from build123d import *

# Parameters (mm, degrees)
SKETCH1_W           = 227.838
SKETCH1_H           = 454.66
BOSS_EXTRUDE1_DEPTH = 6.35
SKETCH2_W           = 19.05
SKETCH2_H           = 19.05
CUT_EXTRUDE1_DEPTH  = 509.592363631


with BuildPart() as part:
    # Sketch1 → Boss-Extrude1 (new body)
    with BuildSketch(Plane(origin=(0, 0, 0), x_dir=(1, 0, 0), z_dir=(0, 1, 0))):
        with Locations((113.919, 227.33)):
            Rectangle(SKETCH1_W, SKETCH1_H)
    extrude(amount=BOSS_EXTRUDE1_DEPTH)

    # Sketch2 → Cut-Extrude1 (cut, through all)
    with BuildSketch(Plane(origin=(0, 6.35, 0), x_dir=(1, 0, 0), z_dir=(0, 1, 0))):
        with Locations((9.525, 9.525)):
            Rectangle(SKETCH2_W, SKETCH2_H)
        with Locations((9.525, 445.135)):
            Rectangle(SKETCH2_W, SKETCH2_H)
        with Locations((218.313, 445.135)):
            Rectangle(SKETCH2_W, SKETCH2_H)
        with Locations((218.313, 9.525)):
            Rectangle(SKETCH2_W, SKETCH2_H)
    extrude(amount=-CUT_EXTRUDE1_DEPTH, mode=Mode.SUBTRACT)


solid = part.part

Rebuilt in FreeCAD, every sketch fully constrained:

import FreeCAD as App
import Part
import Sketcher
from FreeCAD import Vector
Q = App.Units.Quantity

doc = App.newDocument("Part")
body = doc.addObject("PartDesign::Body", "Body")

sketch1 = body.newObject("Sketcher::SketchObject", "Sketch")
sketch1.AttachmentSupport = (doc.getObject("XZ_Plane"), [""])
sketch1.MapMode = "FlatFace"
sketch1.addGeometry([
    Part.LineSegment(Vector(0, -455, 0), Vector(0, 0, 0)),
    Part.LineSegment(Vector(0, 0, 0), Vector(228, 0, 0)),
    Part.LineSegment(Vector(228, 0, 0), Vector(228, -455, 0)),
    Part.LineSegment(Vector(228, -455, 0), Vector(0, -455, 0)),
], False)
sketch1.addConstraint([
    Sketcher.Constraint("Coincident", 0, 2, 1, 1),
    Sketcher.Constraint("Coincident", 1, 2, 2, 1),
    Sketcher.Constraint("Coincident", 2, 2, 3, 1),
    Sketcher.Constraint("Coincident", 3, 2, 0, 1),
    Sketcher.Constraint("Vertical", 0),
    Sketcher.Constraint("Horizontal", 1),
    Sketcher.Constraint("Vertical", 2),
    Sketcher.Constraint("Horizontal", 3),
    Sketcher.Constraint("Coincident", 0, 2, -1, 1),
    Sketcher.Constraint("DistanceY", 0, 1, 0, 2, Q("17.9 in")),
    Sketcher.Constraint("DistanceX", 1, 1, 1, 2, Q("8.97 in")),
])
pad1 = body.newObject("PartDesign::Pad", "Pad")
pad1.Profile = sketch1
pad1.Length = Q("0.25 in")
pad1.Reversed = True

sketch2 = body.newObject("Sketcher::SketchObject", "Sketch001")
sketch2.AttachmentSupport = (doc.getObject("XZ_Plane"), [""])
sketch2.MapMode = "FlatFace"
sketch2.AttachmentOffset = App.Placement(Vector(0, 0, -0.25 * 25.4), App.Rotation())
sketch2.addGeometry([
    Part.LineSegment(Vector(0, -19, 0), Vector(0, 0, 0)),
    Part.LineSegment(Vector(0, 0, 0), Vector(19, 0, 0)),
    Part.LineSegment(Vector(19, 0, 0), Vector(19, -19, 0)),
    Part.LineSegment(Vector(19, -19, 0), Vector(0, -19, 0)),
    Part.LineSegment(Vector(0, -455, 0), Vector(0, -436, 0)),
    Part.LineSegment(Vector(0, -436, 0), Vector(19, -436, 0)),
    Part.LineSegment(Vector(19, -436, 0), Vector(19, -455, 0)),
    Part.LineSegment(Vector(19, -455, 0), Vector(0, -455, 0)),
    Part.LineSegment(Vector(209, -455, 0), Vector(209, -436, 0)),
    Part.LineSegment(Vector(209, -436, 0), Vector(228, -436, 0)),
    Part.LineSegment(Vector(228, -436, 0), Vector(228, -455, 0)),
    Part.LineSegment(Vector(228, -455, 0), Vector(209, -455, 0)),
    Part.LineSegment(Vector(209, -19, 0), Vector(209, 0, 0)),
    Part.LineSegment(Vector(209, 0, 0), Vector(228, 0, 0)),
    Part.LineSegment(Vector(228, 0, 0), Vector(228, -19, 0)),
    Part.LineSegment(Vector(228, -19, 0), Vector(209, -19, 0)),
], False)
sketch2.addConstraint([
    Sketcher.Constraint("Coincident", 0, 2, 1, 1),
    Sketcher.Constraint("Coincident", 1, 2, 2, 1),
    Sketcher.Constraint("Coincident", 2, 2, 3, 1),
    Sketcher.Constraint("Coincident", 3, 2, 0, 1),
    Sketcher.Constraint("Coincident", 4, 2, 5, 1),
    Sketcher.Constraint("Coincident", 5, 2, 6, 1),
    Sketcher.Constraint("Coincident", 6, 2, 7, 1),
    Sketcher.Constraint("Coincident", 7, 2, 4, 1),
    Sketcher.Constraint("Coincident", 8, 2, 9, 1),
    Sketcher.Constraint("Coincident", 9, 2, 10, 1),
    Sketcher.Constraint("Coincident", 10, 2, 11, 1),
    Sketcher.Constraint("Coincident", 11, 2, 8, 1),
    Sketcher.Constraint("Coincident", 12, 2, 13, 1),
    Sketcher.Constraint("Coincident", 13, 2, 14, 1),
    Sketcher.Constraint("Coincident", 14, 2, 15, 1),
    Sketcher.Constraint("Coincident", 15, 2, 12, 1),
    Sketcher.Constraint("Vertical", 0),
    Sketcher.Constraint("Horizontal", 1),
    Sketcher.Constraint("Vertical", 2),
    Sketcher.Constraint("Horizontal", 3),
    Sketcher.Constraint("Vertical", 4),
    Sketcher.Constraint("Horizontal", 5),
    Sketcher.Constraint("Vertical", 6),
    Sketcher.Constraint("Horizontal", 7),
    Sketcher.Constraint("Vertical", 8),
    Sketcher.Constraint("Horizontal", 9),
    Sketcher.Constraint("Vertical", 10),
    Sketcher.Constraint("Horizontal", 11),
    Sketcher.Constraint("Vertical", 12),
    Sketcher.Constraint("Horizontal", 13),
    Sketcher.Constraint("Vertical", 14),
    Sketcher.Constraint("Horizontal", 15),
    Sketcher.Constraint("Coincident", 0, 2, -1, 1),
    Sketcher.Constraint("PointOnObject", 4, 2, -2),
    Sketcher.Constraint("PointOnObject", 12, 2, -1),
    Sketcher.Constraint("Horizontal", 5, 2, 8, 2),
    Sketcher.Constraint("Horizontal", 7, 2, 10, 2),
    Sketcher.Constraint("Horizontal", 3, 2, 14, 2),
    Sketcher.Constraint("Vertical", 2, 2, 5, 2),
    Sketcher.Constraint("Vertical", 11, 2, 12, 2),
    Sketcher.Constraint("Vertical", 10, 2, 13, 2),
    Sketcher.Constraint("Equal", 7, 9),
    Sketcher.Constraint("Equal", 15, 0),
    Sketcher.Constraint("Equal", 2, 4),
    Sketcher.Constraint("DistanceX", 1, 1, 1, 2, Q("0.75 in")),
    Sketcher.Constraint("DistanceY", 6, 2, -1, 1, Q("17.9 in")),
    Sketcher.Constraint("DistanceX", -1, 1, 8, 2, Q("8.22 in")),
])
pocket1 = body.newObject("PartDesign::Pocket", "Pocket")
pocket1.Profile = sketch2
pocket1.Type = "ThroughAll"
pocket1.Reversed = True

doc.recompute()
